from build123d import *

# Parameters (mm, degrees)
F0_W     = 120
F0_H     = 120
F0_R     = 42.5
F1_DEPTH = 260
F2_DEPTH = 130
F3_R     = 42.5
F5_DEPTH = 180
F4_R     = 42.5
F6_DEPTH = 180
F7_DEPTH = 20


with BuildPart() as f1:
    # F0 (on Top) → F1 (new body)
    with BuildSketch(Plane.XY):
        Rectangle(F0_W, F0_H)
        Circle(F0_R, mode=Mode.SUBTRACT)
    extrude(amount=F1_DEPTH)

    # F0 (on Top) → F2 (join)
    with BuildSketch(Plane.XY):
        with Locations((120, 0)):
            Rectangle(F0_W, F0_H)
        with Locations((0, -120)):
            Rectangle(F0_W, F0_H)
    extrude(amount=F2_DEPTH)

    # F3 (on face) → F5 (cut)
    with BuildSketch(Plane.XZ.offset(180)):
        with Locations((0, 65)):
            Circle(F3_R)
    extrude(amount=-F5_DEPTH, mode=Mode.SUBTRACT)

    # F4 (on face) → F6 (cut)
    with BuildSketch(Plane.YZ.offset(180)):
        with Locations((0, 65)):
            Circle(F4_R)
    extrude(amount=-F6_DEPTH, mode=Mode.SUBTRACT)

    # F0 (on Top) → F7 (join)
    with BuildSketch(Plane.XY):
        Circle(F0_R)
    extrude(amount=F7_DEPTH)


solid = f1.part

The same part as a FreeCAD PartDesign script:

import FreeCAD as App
import Part
import Sketcher


def add_polygon(sketch, points):
    """Adds a closed chain of lines whose ends are joined by coincident constraints."""
    first, n = sketch.GeometryCount, len(points)
    for a, b in zip(points, points[1:] + points[:1]):
        sketch.addGeometry(Part.LineSegment(App.Vector(*a, 0), App.Vector(*b, 0)), False)
    for i in range(n):
        sketch.addConstraint(Sketcher.Constraint("Coincident", first + i, 2, first + (i + 1) % n, 1))

doc = App.newDocument("Part")
body = doc.addObject("PartDesign::Body", "Body")

# Sketch on XY plane
sketch1 = body.newObject("Sketcher::SketchObject", "Sketch")
sketch1.AttachmentSupport = (doc.getObject("XY_Plane"), [""])
sketch1.MapMode = "FlatFace"
add_polygon(sketch1, [(-60, 60), (-60, -60), (60, -60), (60, 60)])  # lines 0-3
sketch1.addGeometry(Part.Circle(App.Vector(0, 0, 0), App.Vector(0, 0, 1), 42.5), False)  # 4
sketch1.addConstraint([
    Sketcher.Constraint("Vertical", 0),
    Sketcher.Constraint("Horizontal", 1),
    Sketcher.Constraint("Vertical", 2),
    Sketcher.Constraint("Horizontal", 3),
    Sketcher.Constraint("Coincident", 4, 3, -1, 1),
    Sketcher.Constraint("Symmetric", 0, 2, 2, 2, -1, 1),
    Sketcher.Constraint("Equal", 3, 0),
    Sketcher.Constraint("Diameter", 4, 85.0),
    Sketcher.Constraint("DistanceX", 1, 1, 1, 2, 120.0),
])
pad1 = body.newObject("PartDesign::Pad", "Pad")
pad1.Profile = sketch1
pad1.Length = 260

# Sketch on XY plane
sketch2 = body.newObject("Sketcher::SketchObject", "Sketch001")
sketch2.AttachmentSupport = (doc.getObject("XY_Plane"), [""])
sketch2.MapMode = "FlatFace"
add_polygon(sketch2, [(60, 60), (60, -60), (180, -60), (180, 60)])  # lines 0-3
add_polygon(sketch2, [(-60, -60), (-60, -180), (60, -180), (60, -60)])  # lines 4-7
sketch2.addConstraint([
    Sketcher.Constraint("Vertical", 0),
    Sketcher.Constraint("Horizontal", 1),
    Sketcher.Constraint("Vertical", 2),
    Sketcher.Constraint("Horizontal", 3),
    Sketcher.Constraint("Vertical", 4),
    Sketcher.Constraint("Horizontal", 5),
    Sketcher.Constraint("Vertical", 6),
    Sketcher.Constraint("Horizontal", 7),
    Sketcher.Constraint("Coincident", 6, 2, 0, 2),
    Sketcher.Constraint("Symmetric", 3, 2, 7, 2, -1, 1),
    Sketcher.Constraint("Equal", 3, 5),
    Sketcher.Constraint("Equal", 7, 0),
    Sketcher.Constraint("Equal", 2, 4),
    Sketcher.Constraint("DistanceX", 1, 1, 1, 2, 120.0),
])
pad2 = body.newObject("PartDesign::Pad", "Pad001")
pad2.Profile = sketch2
pad2.Length = 130

# Sketch on XZ plane
sketch3 = body.newObject("Sketcher::SketchObject", "Sketch002")
sketch3.AttachmentSupport = (doc.getObject("XZ_Plane"), [""])
sketch3.MapMode = "FlatFace"
sketch3.AttachmentOffset = App.Placement(App.Vector(0, 0, 180), App.Rotation())
sketch3.addGeometry(Part.Circle(App.Vector(0, 65, 0), App.Vector(0, 0, 1), 42.5), False)
sketch3.addConstraint([
    Sketcher.Constraint("PointOnObject", 0, 3, -2),
    Sketcher.Constraint("Diameter", 0, 85.0),
    Sketcher.Constraint("DistanceY", -1, 1, 0, 3, 65.0),
])
pocket1 = body.newObject("PartDesign::Pocket", "Pocket")
pocket1.Profile = sketch3
pocket1.Length = 180

# Sketch on YZ plane
sketch4 = body.newObject("Sketcher::SketchObject", "Sketch003")
sketch4.AttachmentSupport = (doc.getObject("YZ_Plane"), [""])
sketch4.MapMode = "FlatFace"
sketch4.AttachmentOffset = App.Placement(App.Vector(0, 0, 180), App.Rotation())
sketch4.addGeometry(Part.Circle(App.Vector(0, 65, 0), App.Vector(0, 0, 1), 42.5), False)
sketch4.addConstraint([
    Sketcher.Constraint("PointOnObject", 0, 3, -2),
    Sketcher.Constraint("Diameter", 0, 85.0),
    Sketcher.Constraint("DistanceY", -1, 1, 0, 3, 65.0),
])
pocket2 = body.newObject("PartDesign::Pocket", "Pocket001")
pocket2.Profile = sketch4
pocket2.Length = 180

# Sketch on XY plane
sketch5 = body.newObject("Sketcher::SketchObject", "Sketch004")
sketch5.AttachmentSupport = (doc.getObject("XY_Plane"), [""])
sketch5.MapMode = "FlatFace"
sketch5.addGeometry(Part.Circle(App.Vector(0, 0, 0), App.Vector(0, 0, 1), 42.5), False)
sketch5.addConstraint([
    Sketcher.Constraint("Coincident", 0, 3, -1, 1),
    Sketcher.Constraint("Diameter", 0, 85.0),
])
pad3 = body.newObject("PartDesign::Pad", "Pad002")
pad3.Profile = sketch5
pad3.Length = 20

doc.recompute()
